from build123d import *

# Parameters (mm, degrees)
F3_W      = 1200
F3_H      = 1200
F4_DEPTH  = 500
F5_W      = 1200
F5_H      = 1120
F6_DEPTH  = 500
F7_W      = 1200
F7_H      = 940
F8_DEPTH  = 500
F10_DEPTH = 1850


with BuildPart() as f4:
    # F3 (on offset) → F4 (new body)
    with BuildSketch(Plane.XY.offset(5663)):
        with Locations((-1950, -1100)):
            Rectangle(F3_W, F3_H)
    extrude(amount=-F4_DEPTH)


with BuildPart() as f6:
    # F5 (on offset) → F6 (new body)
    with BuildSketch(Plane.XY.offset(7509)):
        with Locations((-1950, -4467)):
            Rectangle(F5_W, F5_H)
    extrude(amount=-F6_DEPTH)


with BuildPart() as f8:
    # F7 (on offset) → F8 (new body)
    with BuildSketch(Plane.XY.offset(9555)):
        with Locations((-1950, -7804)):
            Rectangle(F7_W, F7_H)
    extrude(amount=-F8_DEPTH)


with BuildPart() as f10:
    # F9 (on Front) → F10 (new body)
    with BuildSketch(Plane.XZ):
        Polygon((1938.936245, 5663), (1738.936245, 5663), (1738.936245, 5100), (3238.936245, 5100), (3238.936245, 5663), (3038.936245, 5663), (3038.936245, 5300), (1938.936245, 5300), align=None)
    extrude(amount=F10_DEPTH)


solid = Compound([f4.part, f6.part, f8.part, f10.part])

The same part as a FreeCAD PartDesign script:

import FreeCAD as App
import Part
import Sketcher
from FreeCAD import Vector


def add_polygon(sketch, points):
    """Adds a closed chain of lines whose ends are joined by coincident constraints."""
    first, n = sketch.GeometryCount, len(points)
    for a, b in zip(points, points[1:] + points[:1]):
        sketch.addGeometry(Part.LineSegment(App.Vector(*a, 0), App.Vector(*b, 0)), False)
    for i in range(n):
        sketch.addConstraint(Sketcher.Constraint("Coincident", first + i, 2, first + (i + 1) % n, 1))

doc = App.newDocument("Part")
params = doc.addObject("Spreadsheet::Sheet", "Params")
for row, (alias, value) in enumerate([
    ("sketch1_width", "1200 mm"),
    ("pad1_length", "500 mm"),
    ("sketch2_width", "1200 mm"),
    ("sketch2_height", "1120 mm"),
    ("pad2_length", "500 mm"),
    ("sketch3_width", "1200 mm"),
    ("sketch3_height", "940 mm"),
    ("pad3_length", "500 mm"),
    ("sketch4_width", "200 mm"),
    ("sketch4_width2", "1500 mm"),
    ("sketch4_height", "563 mm"),
    ("sketch4_height2", "363 mm"),
    ("pad4_length", "1850 mm"),
], start=1):
    params.set(f"A{row}", alias)
    params.set(f"B{row}", "=" + value)
    params.setAlias(f"B{row}", alias)

body = doc.addObject("PartDesign::Body", "Body")

sketch1 = body.newObject("Sketcher::SketchObject", "Sketch")
sketch1.AttachmentSupport = (doc.getObject("XY_Plane"), [""])
sketch1.MapMode = "FlatFace"
sketch1.AttachmentOffset = App.Placement(Vector(0, 0, 5663), App.Rotation())
add_polygon(sketch1, [(-2550, -500), (-2550, -1700), (-1350, -1700), (-1350, -500)])
sketch1.addConstraint([
    Sketcher.Constraint("Vertical", 0),
    Sketcher.Constraint("Horizontal", 1),
    Sketcher.Constraint("Vertical", 2),
    Sketcher.Constraint("Horizontal", 3),
    Sketcher.Constraint("Equal", 3, 0),
    Sketcher.Constraint("DistanceX", 1, 1, 1, 2, 1200.0),
    Sketcher.Constraint("DistanceX", 0, 2, -1, 1, 2550.0),
    Sketcher.Constraint("DistanceY", 0, 2, -1, 1, 1700.0),
])
sketch1.setExpression("Constraints[9]", "Params.sketch1_width")
pad1 = body.newObject("PartDesign::Pad", "Pad")
pad1.Profile = sketch1
pad1.setExpression("Length", "Params.pad1_length")
pad1.Reversed = True
body2 = doc.addObject("PartDesign::Body", "Body001")

sketch2 = body2.newObject("Sketcher::SketchObject", "Sketch001")
sketch2.AttachmentSupport = (doc.getObject("XY_Plane001"), [""])
sketch2.MapMode = "FlatFace"
sketch2.AttachmentOffset = App.Placement(Vector(0, 0, 7509), App.Rotation())
add_polygon(sketch2, [(-2550, -3907), (-2550, -5027), (-1350, -5027), (-1350, -3907)])
sketch2.addConstraint([
    Sketcher.Constraint("Vertical", 0),
    Sketcher.Constraint("Horizontal", 1),
    Sketcher.Constraint("Vertical", 2),
    Sketcher.Constraint("Horizontal", 3),
    Sketcher.Constraint("DistanceX", 1, 1, 1, 2, 1200.0),
    Sketcher.Constraint("DistanceY", 0, 2, 0, 1, 1120.0),
    Sketcher.Constraint("DistanceX", 0, 2, -1, 1, 2550.0),
    Sketcher.Constraint("DistanceY", 0, 2, -1, 1, 5027.0),
])
sketch2.setExpression("Constraints[8]", "Params.sketch2_width")
sketch2.setExpression("Constraints[9]", "Params.sketch2_height")
pad2 = body2.newObject("PartDesign::Pad", "Pad001")
pad2.Profile = sketch2
pad2.setExpression("Length", "Params.pad2_length")
pad2.Reversed = True
body3 = doc.addObject("PartDesign::Body", "Body002")

sketch3 = body3.newObject("Sketcher::SketchObject", "Sketch002")
sketch3.AttachmentSupport = (doc.getObject("XY_Plane002"), [""])
sketch3.MapMode = "FlatFace"
sketch3.AttachmentOffset = App.Placement(Vector(0, 0, 9555), App.Rotation())
add_polygon(sketch3, [(-2550, -7334), (-2550, -8274), (-1350, -8274), (-1350, -7334)])
sketch3.addConstraint([
    Sketcher.Constraint("Vertical", 0),
    Sketcher.Constraint("Horizontal", 1),
    Sketcher.Constraint("Vertical", 2),
    Sketcher.Constraint("Horizontal", 3),
    Sketcher.Constraint("DistanceX", 1, 1, 1, 2, 1200.0),
    Sketcher.Constraint("DistanceY", 0, 2, 0, 1, 940.0),
    Sketcher.Constraint("DistanceX", 0, 2, -1, 1, 2550.0),
    Sketcher.Constraint("DistanceY", 0, 2, -1, 1, 8274.0),
])
sketch3.setExpression("Constraints[8]", "Params.sketch3_width")
sketch3.setExpression("Constraints[9]", "Params.sketch3_height")
pad3 = body3.newObject("PartDesign::Pad", "Pad002")
pad3.Profile = sketch3
pad3.setExpression("Length", "Params.pad3_length")
pad3.Reversed = True
body4 = doc.addObject("PartDesign::Body", "Body003")

sketch4 = body4.newObject("Sketcher::SketchObject", "Sketch003")
sketch4.AttachmentSupport = (doc.getObject("XZ_Plane003"), [""])
sketch4.MapMode = "FlatFace"
add_polygon(sketch4, [(1939, 5663), (1739, 5663), (1739, 5100), (3239, 5100), (3239, 5663), (3039, 5663), (3039, 5300), (1939, 5300)])
sketch4.addConstraint([
    Sketcher.Constraint("Horizontal", 0),
    Sketcher.Constraint("Vertical", 1),
    Sketcher.Constraint("Horizontal", 2),
    Sketcher.Constraint("Vertical", 3),
    Sketcher.Constraint("Horizontal", 4),
    Sketcher.Constraint("Vertical", 5),
    Sketcher.Constraint("Horizontal", 6),
    Sketcher.Constraint("Vertical", 7),
    Sketcher.Constraint("Horizontal", 0, 2, 3, 2),
    Sketcher.Constraint("Equal", 0, 4),
    Sketcher.Constraint("DistanceX", 0, 2, 0, 1, 200.0),
    Sketcher.Constraint("DistanceX", 2, 1, 2, 2, 1500.0),
    Sketcher.Constraint("DistanceY", 1, 2, 1, 1, 563.0),
    Sketcher.Constraint("DistanceY", 5, 2, 5, 1, 363.0),
    Sketcher.Constraint("DistanceY", -1, 1, 0, 2, 5663.0),
    Sketcher.Constraint("DistanceX", -1, 1, 0, 2, 1738.936245),
])
sketch4.setExpression("Constraints[18]", "Params.sketch4_width")
sketch4.setExpression("Constraints[19]", "Params.sketch4_width2")
sketch4.setExpression("Constraints[20]", "Params.sketch4_height")
sketch4.setExpression("Constraints[21]", "Params.sketch4_height2")
pad4 = body4.newObject("PartDesign::Pad", "Pad003")
pad4.Profile = sketch4
pad4.setExpression("Length", "Params.pad4_length")

doc.recompute()
